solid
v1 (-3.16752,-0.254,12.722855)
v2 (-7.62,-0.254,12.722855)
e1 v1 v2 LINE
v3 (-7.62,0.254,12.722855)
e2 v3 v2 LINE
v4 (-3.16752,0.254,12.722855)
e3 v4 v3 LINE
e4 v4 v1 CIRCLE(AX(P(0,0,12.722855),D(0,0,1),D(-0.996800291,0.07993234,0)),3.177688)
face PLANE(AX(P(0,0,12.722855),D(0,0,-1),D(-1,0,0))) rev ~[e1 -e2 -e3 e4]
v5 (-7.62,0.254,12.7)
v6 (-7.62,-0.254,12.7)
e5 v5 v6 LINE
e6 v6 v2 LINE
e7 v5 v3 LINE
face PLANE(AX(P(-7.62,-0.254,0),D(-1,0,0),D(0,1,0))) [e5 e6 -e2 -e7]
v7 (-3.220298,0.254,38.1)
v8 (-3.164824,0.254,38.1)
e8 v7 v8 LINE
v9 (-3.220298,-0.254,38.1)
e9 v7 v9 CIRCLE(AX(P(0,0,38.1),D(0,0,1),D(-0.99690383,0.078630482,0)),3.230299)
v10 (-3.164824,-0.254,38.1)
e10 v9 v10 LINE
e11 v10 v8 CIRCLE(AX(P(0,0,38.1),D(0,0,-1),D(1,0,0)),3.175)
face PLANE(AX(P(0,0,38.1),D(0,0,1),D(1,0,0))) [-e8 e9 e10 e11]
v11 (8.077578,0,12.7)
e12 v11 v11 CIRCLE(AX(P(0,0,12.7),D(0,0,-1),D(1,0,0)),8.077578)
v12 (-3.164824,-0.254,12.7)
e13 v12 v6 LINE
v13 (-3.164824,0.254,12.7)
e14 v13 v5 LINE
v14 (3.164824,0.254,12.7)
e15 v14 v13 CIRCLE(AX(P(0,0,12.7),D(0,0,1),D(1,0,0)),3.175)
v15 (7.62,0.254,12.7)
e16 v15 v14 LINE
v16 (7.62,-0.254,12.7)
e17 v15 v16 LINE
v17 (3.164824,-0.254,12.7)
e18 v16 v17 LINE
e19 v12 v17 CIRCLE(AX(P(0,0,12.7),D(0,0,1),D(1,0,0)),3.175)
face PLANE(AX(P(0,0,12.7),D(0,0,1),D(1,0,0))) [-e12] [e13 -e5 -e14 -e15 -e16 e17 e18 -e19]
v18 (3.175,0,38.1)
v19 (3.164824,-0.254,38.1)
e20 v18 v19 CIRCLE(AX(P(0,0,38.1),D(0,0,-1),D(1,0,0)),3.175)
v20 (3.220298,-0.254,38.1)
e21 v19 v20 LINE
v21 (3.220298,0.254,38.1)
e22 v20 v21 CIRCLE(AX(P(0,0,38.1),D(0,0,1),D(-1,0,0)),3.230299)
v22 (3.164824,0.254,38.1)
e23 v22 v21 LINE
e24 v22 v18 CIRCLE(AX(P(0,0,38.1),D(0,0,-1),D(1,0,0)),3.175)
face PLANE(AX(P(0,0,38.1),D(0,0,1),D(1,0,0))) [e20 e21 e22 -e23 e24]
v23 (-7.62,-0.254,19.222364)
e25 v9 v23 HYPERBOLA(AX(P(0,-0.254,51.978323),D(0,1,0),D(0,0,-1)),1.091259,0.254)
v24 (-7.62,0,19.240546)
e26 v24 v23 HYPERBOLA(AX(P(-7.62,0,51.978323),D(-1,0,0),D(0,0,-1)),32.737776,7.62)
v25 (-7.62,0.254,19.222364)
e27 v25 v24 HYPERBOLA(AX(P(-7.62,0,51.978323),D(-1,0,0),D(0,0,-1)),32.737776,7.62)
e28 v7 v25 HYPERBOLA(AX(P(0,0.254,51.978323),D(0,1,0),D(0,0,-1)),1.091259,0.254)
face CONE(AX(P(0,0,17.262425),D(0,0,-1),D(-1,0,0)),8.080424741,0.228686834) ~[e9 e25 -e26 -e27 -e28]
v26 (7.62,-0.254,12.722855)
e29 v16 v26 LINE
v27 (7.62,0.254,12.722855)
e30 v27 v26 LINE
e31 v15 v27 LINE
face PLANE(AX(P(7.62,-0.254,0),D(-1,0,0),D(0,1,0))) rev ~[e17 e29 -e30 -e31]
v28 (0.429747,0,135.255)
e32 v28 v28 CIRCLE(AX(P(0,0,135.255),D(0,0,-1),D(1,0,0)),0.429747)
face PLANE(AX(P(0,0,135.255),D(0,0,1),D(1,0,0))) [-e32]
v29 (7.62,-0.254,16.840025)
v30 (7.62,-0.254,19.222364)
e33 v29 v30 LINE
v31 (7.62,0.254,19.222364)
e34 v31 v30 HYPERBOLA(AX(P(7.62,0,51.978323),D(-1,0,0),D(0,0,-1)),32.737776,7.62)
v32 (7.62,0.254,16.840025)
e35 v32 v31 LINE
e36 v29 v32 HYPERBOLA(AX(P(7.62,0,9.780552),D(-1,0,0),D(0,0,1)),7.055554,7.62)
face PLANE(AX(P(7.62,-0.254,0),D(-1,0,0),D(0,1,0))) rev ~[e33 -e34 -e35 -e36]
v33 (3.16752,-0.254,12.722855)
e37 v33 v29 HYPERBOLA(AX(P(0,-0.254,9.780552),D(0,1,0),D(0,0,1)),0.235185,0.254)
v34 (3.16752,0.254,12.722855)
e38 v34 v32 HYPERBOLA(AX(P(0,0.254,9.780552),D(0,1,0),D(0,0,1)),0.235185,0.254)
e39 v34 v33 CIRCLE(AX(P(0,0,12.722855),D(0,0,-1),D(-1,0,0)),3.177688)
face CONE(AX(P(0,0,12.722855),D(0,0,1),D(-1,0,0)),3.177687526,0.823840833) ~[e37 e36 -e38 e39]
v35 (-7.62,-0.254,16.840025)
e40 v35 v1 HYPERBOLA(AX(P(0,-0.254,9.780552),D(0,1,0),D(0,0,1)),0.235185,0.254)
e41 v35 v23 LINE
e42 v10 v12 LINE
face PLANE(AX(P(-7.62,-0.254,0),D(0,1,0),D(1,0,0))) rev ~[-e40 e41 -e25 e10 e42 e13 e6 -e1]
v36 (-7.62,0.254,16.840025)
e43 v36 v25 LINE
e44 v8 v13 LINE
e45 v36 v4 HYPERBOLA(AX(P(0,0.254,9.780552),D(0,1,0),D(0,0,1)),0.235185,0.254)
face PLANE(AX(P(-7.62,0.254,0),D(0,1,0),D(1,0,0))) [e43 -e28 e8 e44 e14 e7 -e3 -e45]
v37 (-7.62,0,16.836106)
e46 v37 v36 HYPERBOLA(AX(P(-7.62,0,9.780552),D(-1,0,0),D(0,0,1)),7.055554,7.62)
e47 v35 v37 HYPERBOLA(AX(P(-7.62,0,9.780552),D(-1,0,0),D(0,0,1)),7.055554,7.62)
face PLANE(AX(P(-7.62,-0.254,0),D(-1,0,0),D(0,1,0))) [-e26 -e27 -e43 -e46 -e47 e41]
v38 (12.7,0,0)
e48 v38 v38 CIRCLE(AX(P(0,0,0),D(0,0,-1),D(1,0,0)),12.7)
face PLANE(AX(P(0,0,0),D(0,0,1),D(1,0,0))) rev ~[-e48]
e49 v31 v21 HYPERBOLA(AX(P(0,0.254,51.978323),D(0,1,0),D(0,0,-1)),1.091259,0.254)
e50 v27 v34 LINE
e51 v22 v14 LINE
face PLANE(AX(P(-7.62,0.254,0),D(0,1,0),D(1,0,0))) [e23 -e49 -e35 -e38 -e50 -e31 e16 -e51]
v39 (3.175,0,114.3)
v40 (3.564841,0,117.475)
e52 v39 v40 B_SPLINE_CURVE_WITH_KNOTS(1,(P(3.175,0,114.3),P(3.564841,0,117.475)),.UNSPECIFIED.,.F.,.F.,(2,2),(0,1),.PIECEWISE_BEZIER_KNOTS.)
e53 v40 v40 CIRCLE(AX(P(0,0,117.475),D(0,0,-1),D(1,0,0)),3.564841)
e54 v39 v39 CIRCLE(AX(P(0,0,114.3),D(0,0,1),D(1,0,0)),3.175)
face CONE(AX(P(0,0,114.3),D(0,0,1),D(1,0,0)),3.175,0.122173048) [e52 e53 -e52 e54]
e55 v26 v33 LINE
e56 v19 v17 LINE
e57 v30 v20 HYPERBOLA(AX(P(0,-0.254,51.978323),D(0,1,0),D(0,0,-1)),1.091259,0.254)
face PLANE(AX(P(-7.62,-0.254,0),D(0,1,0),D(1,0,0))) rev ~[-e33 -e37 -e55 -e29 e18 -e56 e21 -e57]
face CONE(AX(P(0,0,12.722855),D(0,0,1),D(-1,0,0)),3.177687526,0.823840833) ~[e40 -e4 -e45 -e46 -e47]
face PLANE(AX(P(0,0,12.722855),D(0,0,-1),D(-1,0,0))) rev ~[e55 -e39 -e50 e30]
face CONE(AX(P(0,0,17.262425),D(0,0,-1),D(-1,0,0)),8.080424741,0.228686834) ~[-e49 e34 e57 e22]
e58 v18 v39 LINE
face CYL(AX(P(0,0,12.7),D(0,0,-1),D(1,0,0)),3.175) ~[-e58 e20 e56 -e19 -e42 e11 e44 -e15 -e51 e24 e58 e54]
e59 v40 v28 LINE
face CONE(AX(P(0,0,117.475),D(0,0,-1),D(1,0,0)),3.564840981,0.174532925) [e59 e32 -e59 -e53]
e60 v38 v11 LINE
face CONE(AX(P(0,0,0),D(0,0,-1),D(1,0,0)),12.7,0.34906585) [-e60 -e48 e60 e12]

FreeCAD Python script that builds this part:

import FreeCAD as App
import Part
import Sketcher
from FreeCAD import Vector
Q = App.Units.Quantity

doc = App.newDocument("Part")
body = doc.addObject("PartDesign::Body", "Body")

# Sketch on XY plane
sketch1 = body.newObject("Sketcher::SketchObject", "Sketch")
sketch1.AttachmentSupport = (doc.getObject("XY_Plane"), [""])
sketch1.MapMode = "FlatFace"
sketch1.addGeometry(Part.Circle(Vector(0, 0, 0), Vector(0, 0, 1), 13), False)
sketch1.addConstraint([
    Sketcher.Constraint("Coincident", 0, 3, -1, 1),
    Sketcher.Constraint("Diameter", 0, Q("1 in")),
])
pad1 = body.newObject("PartDesign::Pad", "Pad")
pad1.Profile = sketch1
pad1.Length = Q("0.5 in")
pad1.TaperAngle = -20

# Sketch on XY plane
sketch2 = body.newObject("Sketcher::SketchObject", "Sketch001")
sketch2.AttachmentSupport = (doc.getObject("XY_Plane"), [""])
sketch2.MapMode = "FlatFace"
sketch2.AttachmentOffset = App.Placement(Vector(0, 0, 0.5 * 25.4), App.Rotation())
sketch2.addGeometry(Part.Circle(Vector(0, 0, 0), Vector(0, 0, 1), 3.2), False)
sketch2.addConstraint([
    Sketcher.Constraint("Coincident", 0, 3, -1, 1),
    Sketcher.Constraint("Diameter", 0, Q("0.25 in")),
])
pad2 = body.newObject("PartDesign::Pad", "Pad001")
pad2.Profile = sketch2
pad2.Length = Q("4 in")

# Sketch on XY plane
sketch3 = body.newObject("Sketcher::SketchObject", "Sketch002")
sketch3.AttachmentSupport = (doc.getObject("XY_Plane"), [""])
sketch3.MapMode = "FlatFace"
sketch3.AttachmentOffset = App.Placement(Vector(0, 0, 4.5 * 25.4), App.Rotation())
sketch3.addGeometry(Part.Circle(Vector(0, 0, 0), Vector(0, 0, 1), 3.2), False)
sketch3.addConstraint([
    Sketcher.Constraint("Coincident", 0, 3, -1, 1),
    Sketcher.Constraint("Diameter", 0, Q("0.25 in")),
])
pad3 = body.newObject("PartDesign::Pad", "Pad002")
pad3.Profile = sketch3
pad3.Length = Q("0.125 in")
pad3.TaperAngle = 7

# Sketch on XY plane
sketch4 = body.newObject("Sketcher::SketchObject", "Sketch003")
sketch4.AttachmentSupport = (doc.getObject("XY_Plane"), [""])
sketch4.MapMode = "FlatFace"
sketch4.AttachmentOffset = App.Placement(Vector(0, 0, 4.625 * 25.4), App.Rotation())
sketch4.addGeometry(Part.Circle(Vector(0, 0, 0), Vector(0, 0, 1), 3.6), False)
sketch4.addConstraint([
    Sketcher.Constraint("Coincident", 0, 3, -1, 1),
    Sketcher.Constraint("Diameter", 0, 7.129682),
])
pad4 = body.newObject("PartDesign::Pad", "Pad003")
pad4.Profile = sketch4
pad4.Length = Q("0.7 in")
pad4.TaperAngle = -10

# Sketch on XY plane
sketch5 = body.newObject("Sketcher::SketchObject", "Sketch004")
sketch5.AttachmentSupport = (doc.getObject("XY_Plane"), [""])
sketch5.MapMode = "FlatFace"
sketch5.addGeometry([
    Part.LineSegment(Vector(-7.6, 0.3, 0), Vector(-7.6, -0.3, 0)),
    Part.LineSegment(Vector(-7.6, -0.3, 0), Vector(7.6, -0.3, 0)),
    Part.LineSegment(Vector(7.6, -0.3, 0), Vector(7.6, 0.3, 0)),
    Part.LineSegment(Vector(7.6, 0.3, 0), Vector(-7.6, 0.3, 0)),
], False)
sketch5.addConstraint([
    Sketcher.Constraint("Coincident", 0, 2, 1, 1),
    Sketcher.Constraint("Coincident", 1, 2, 2, 1),
    Sketcher.Constraint("Coincident", 2, 2, 3, 1),
    Sketcher.Constraint("Coincident", 3, 2, 0, 1),
    Sketcher.Constraint("Vertical", 0),
    Sketcher.Constraint("Horizontal", 1),
    Sketcher.Constraint("Vertical", 2),
    Sketcher.Constraint("Horizontal", 3),
    Sketcher.Constraint("Symmetric", 0, 2, 2, 2, -1, 1),
    Sketcher.Constraint("DistanceX", 1, 1, 1, 2, Q("0.6 in")),
    Sketcher.Constraint("DistanceY", 0, 2, 0, 1, Q("0.02 in")),
])
pad5 = body.newObject("PartDesign::Pad", "Pad004")
pad5.Profile = sketch5
pad5.Length = Q("1.5 in")

# Sketch on XZ plane
sketch6 = body.newObject("Sketcher::SketchObject", "Sketch005")
sketch6.AttachmentSupport = (doc.getObject("XZ_Plane"), [""])
sketch6.MapMode = "FlatFace"
sketch6.addGeometry([
    Part.LineSegment(Vector(-8, 17, 0), Vector(-3, 38, 0)),  # 0
    Part.LineSegment(Vector(-3, 38, 0), Vector(-9, 40, 0)),  # 1
    Part.LineSegment(Vector(-9, 40, 0), Vector(-12, 13, 0)),  # 2
    Part.LineSegment(Vector(-12, 13, 0), Vector(-3, 13, 0)),  # 3
    Part.LineSegment(Vector(-3, 13, 0), Vector(-8, 17, 0)),  # 4
], False)
sketch6.addConstraint([
    Sketcher.Constraint("Coincident", 0, 2, 1, 1),
    Sketcher.Constraint("Coincident", 1, 2, 2, 1),
    Sketcher.Constraint("Coincident", 2, 2, 3, 1),
    Sketcher.Constraint("Coincident", 3, 2, 4, 1),
    Sketcher.Constraint("Coincident", 4, 2, 0, 1),
    Sketcher.Constraint("Horizontal", 3),
    Sketcher.Constraint("Vertical", 0, 2, 3, 2),
    Sketcher.Constraint("DistanceX", 3, 1, 3, 2, 8.594922),
    Sketcher.Constraint("DistanceX", 1, 2, -1, 1, 8.685701),
    Sketcher.Constraint("Distance", 2, 27.291509),
    Sketcher.Constraint("DistanceX", 2, 2, -1, 1, 11.772609),
    Sketcher.Constraint("DistanceY", 2, 2, 0, 2, 25.603182),
    Sketcher.Constraint("DistanceY", 2, 2, 4, 2, 4.539571),
    Sketcher.Constraint("Distance", 0, 21.626663),
    Sketcher.Constraint("DistanceY", -1, 1, 0, 2, 38.326036),
])
groove = body.newObject("PartDesign::Groove", "Groove")
groove.Profile = sketch6
groove.ReferenceAxis = (sketch6, ["V_Axis"])
groove.Angle = 360

doc.recompute()
